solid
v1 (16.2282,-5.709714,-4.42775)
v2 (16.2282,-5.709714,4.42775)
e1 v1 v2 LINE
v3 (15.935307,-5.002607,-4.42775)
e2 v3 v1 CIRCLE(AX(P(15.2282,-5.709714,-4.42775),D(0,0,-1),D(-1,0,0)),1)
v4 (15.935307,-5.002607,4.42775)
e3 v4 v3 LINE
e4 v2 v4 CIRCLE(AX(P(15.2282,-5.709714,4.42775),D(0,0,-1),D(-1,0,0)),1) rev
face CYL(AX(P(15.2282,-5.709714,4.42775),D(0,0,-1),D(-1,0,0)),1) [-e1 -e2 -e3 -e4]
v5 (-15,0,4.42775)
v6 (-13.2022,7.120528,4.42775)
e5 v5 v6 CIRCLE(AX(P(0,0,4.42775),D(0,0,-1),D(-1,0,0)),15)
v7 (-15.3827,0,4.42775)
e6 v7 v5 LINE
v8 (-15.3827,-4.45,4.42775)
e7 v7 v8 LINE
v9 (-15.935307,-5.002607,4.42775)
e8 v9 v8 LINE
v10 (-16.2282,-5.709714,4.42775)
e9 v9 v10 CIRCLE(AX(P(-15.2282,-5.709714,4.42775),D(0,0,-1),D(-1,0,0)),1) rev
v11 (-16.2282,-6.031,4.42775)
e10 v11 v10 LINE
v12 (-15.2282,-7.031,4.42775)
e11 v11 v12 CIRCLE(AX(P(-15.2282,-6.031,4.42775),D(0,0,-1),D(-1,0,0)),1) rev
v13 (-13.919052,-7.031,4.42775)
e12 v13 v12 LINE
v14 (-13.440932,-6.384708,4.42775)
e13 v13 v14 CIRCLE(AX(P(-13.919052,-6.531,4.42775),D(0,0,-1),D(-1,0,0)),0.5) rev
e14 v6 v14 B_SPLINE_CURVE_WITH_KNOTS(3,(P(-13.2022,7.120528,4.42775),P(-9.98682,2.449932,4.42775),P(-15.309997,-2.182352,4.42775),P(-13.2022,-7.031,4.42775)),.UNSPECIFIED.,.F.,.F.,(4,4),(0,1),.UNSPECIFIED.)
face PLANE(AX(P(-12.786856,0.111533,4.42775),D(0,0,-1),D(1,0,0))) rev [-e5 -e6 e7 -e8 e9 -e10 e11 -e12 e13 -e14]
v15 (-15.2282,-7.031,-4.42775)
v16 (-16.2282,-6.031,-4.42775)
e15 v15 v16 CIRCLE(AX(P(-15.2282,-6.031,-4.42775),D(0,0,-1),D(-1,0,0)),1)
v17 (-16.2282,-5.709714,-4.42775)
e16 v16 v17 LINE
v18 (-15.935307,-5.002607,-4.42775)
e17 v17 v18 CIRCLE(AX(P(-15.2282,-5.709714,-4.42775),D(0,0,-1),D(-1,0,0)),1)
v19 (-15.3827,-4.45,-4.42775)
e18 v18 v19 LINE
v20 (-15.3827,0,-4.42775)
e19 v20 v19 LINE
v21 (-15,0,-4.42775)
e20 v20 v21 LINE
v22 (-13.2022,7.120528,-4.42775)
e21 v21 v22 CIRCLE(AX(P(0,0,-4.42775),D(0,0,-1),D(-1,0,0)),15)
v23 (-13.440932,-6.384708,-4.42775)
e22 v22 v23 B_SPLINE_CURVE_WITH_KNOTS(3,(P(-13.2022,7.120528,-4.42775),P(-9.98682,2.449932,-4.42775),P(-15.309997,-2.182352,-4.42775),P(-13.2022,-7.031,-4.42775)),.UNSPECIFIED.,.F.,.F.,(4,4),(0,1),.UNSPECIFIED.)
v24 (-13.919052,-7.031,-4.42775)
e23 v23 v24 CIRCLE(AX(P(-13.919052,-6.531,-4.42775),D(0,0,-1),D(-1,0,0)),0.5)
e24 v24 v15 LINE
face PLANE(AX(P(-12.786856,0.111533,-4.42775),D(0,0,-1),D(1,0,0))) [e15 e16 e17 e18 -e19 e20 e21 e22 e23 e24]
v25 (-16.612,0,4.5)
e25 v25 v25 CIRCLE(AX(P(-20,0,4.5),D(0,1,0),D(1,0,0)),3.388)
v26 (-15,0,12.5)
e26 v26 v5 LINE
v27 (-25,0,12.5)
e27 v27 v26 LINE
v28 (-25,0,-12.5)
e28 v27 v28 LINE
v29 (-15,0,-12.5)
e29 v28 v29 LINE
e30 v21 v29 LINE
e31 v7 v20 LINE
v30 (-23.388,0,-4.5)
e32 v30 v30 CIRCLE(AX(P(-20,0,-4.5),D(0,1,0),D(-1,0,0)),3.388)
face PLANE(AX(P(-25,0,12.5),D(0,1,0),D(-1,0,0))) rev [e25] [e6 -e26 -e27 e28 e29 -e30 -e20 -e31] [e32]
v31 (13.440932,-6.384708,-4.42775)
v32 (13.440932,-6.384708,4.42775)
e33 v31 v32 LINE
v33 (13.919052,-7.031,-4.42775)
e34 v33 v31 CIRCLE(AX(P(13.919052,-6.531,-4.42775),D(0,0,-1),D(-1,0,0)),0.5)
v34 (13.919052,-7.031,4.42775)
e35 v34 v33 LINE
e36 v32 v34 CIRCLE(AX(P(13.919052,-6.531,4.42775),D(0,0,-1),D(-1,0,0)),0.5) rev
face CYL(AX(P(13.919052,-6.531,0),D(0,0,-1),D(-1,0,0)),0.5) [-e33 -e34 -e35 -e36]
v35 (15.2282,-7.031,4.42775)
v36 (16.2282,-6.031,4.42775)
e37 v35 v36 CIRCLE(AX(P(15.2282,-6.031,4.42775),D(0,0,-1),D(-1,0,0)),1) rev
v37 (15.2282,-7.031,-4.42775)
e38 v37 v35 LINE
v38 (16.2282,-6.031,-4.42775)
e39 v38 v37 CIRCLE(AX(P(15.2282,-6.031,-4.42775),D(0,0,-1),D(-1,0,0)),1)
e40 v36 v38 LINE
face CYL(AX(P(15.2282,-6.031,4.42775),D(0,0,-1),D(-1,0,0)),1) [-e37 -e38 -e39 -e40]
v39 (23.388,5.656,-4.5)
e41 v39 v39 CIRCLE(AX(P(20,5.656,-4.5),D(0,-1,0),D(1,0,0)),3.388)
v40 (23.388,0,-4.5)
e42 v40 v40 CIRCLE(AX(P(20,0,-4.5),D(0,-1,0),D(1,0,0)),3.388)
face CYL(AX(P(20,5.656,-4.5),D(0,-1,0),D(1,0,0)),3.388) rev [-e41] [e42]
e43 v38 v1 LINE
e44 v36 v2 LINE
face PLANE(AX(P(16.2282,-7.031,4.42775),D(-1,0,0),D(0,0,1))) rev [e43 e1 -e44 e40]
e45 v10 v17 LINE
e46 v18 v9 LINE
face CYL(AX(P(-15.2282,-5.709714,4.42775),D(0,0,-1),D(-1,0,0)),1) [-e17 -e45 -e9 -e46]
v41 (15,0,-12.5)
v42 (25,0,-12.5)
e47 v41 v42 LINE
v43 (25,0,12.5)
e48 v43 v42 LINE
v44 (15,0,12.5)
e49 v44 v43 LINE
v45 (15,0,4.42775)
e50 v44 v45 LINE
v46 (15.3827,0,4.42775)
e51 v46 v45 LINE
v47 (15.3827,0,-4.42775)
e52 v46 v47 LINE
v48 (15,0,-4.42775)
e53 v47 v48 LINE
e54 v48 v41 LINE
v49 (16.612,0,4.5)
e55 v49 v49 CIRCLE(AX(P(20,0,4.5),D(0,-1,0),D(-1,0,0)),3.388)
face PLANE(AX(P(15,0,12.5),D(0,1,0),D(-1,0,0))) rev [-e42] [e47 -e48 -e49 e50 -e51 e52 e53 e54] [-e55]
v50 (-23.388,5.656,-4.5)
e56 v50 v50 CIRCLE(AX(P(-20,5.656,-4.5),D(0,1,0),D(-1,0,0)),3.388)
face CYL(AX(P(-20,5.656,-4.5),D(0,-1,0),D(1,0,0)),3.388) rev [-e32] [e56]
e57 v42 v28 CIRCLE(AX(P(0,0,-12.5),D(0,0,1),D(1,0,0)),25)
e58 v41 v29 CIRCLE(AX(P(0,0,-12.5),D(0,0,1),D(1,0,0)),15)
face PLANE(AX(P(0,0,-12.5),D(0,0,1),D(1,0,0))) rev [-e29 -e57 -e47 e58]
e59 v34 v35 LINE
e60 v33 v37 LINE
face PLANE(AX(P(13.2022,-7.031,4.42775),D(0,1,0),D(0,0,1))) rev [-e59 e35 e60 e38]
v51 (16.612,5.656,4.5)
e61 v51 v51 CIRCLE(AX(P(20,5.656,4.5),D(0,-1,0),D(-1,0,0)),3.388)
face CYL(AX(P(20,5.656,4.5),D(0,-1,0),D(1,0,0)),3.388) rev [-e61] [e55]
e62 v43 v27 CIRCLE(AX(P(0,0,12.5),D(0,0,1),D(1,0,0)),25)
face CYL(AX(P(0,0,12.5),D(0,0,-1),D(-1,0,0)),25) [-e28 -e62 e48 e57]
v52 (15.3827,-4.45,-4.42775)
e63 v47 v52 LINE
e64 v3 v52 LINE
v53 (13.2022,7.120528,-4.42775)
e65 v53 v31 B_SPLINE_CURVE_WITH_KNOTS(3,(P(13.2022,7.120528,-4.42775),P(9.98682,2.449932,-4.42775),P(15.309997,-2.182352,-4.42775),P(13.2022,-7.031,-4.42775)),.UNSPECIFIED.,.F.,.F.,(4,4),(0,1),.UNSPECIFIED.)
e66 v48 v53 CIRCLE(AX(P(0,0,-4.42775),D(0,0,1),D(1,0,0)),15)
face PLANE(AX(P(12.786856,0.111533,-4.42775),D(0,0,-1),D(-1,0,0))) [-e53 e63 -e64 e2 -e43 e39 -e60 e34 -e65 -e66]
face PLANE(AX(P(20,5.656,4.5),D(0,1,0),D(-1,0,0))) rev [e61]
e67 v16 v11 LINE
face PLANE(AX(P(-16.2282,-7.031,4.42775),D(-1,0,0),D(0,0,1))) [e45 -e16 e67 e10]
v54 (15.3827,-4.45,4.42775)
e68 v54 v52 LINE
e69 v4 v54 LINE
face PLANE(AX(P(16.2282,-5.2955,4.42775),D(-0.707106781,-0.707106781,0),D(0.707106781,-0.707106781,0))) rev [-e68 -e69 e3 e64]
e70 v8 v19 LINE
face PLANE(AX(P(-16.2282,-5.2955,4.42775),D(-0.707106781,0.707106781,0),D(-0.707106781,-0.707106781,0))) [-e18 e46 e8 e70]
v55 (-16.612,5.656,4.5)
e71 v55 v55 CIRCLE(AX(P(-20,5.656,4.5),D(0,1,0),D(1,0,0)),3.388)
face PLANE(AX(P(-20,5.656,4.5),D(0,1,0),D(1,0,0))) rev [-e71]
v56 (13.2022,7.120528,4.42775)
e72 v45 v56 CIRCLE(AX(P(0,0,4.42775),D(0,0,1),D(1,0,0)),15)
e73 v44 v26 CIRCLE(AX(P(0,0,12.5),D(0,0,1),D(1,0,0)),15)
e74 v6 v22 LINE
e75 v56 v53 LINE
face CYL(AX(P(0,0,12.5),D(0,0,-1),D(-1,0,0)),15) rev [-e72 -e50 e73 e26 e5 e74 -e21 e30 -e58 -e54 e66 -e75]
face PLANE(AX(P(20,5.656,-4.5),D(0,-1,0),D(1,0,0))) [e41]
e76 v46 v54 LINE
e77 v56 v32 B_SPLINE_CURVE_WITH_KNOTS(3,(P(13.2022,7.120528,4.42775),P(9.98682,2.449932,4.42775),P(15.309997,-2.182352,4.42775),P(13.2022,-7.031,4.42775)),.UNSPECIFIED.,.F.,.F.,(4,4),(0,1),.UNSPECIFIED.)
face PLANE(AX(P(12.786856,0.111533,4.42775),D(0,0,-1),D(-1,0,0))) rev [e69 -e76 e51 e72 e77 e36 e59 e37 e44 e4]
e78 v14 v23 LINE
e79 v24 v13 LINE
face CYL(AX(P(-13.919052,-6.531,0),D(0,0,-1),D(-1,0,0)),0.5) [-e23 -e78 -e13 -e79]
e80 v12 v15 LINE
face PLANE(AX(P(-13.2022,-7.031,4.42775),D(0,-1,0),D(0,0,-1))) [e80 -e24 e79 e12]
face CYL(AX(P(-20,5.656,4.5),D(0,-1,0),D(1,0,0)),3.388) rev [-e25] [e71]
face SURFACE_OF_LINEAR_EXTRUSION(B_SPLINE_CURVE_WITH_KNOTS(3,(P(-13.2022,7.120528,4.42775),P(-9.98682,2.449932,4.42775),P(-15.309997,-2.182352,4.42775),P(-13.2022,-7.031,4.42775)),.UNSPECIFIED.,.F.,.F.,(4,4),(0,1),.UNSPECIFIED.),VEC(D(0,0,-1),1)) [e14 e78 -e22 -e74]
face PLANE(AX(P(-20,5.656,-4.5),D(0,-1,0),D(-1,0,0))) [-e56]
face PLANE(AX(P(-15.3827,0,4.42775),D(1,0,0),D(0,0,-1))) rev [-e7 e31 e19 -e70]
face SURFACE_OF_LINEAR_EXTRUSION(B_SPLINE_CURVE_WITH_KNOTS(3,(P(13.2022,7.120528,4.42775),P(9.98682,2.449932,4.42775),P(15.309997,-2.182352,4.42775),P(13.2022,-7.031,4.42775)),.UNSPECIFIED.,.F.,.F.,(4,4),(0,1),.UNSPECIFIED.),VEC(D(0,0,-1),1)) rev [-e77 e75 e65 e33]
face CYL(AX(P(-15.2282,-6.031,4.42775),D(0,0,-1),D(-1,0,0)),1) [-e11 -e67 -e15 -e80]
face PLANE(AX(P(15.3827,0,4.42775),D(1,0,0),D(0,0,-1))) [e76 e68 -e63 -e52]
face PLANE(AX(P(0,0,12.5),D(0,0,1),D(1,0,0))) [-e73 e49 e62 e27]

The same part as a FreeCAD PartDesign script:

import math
import FreeCAD as App
import Part
import Sketcher

V = App.Vector
Q = App.Units.Quantity


def edges_at(feature, points):
    """Names of the edges that pass closest to the given points."""
    edges = feature.Shape.Edges
    near = lambda p: min(range(len(edges)), key=lambda i: edges[i].distToShape(Part.Vertex(*p))[0])
    return sorted({f"Edge{near(p) + 1}" for p in points})

doc = App.newDocument("Part")
params = doc.addObject("Spreadsheet::Sheet", "Params")
for row, (alias, value) in enumerate([
    ("sketch1_radius", "15 mm"),
    ("sketch1_radius2", "25 mm"),
    ("pad1_length", "25 mm"),
    ("sketch2_height", "4.45 mm"),
    ("pad2_length", "8.8555 mm"),
    ("fillet_radius", "1 mm"),
    ("fillet2_radius", "1 mm"),
    ("fillet3_radius", "1 mm"),
    ("fillet4_radius", "1 mm"),
    ("pocket1_length", "5.656 mm"),
    ("fillet5_radius", "0.5 mm"),
], start=1):
    params.set(f"A{row}", alias)
    params.set(f"B{row}", "=" + value)
    params.setAlias(f"B{row}", alias)

body = doc.addObject("PartDesign::Body", "Body")

sketch1 = body.newObject("Sketcher::SketchObject", "Sketch")
sketch1.AttachmentSupport = (doc.getObject("XY_Plane"), [""])
sketch1.MapMode = "FlatFace"
sketch1.addGeometry([
    Part.LineSegment(V(-25, 0, 0), V(-15, 0, 0)),
    Part.ArcOfCircle(Part.Circle(V(0, 0, 0), V(0, 0, 1), 15), math.radians(0), math.radians(180)),
    Part.LineSegment(V(15, 0, 0), V(25, 0, 0)),
    Part.ArcOfCircle(Part.Circle(V(0, 0, 0), V(0, 0, 1), 25), math.radians(0), math.radians(180)),
], False)
sketch1.addConstraint([
    Sketcher.Constraint("Coincident", 0, 2, 1, 2),
    Sketcher.Constraint("Coincident", 1, 1, 2, 1),
    Sketcher.Constraint("Coincident", 2, 2, 3, 1),
    Sketcher.Constraint("Coincident", 3, 2, 0, 1),
    Sketcher.Constraint("Horizontal", 0),
    Sketcher.Constraint("Horizontal", 2),
    Sketcher.Constraint("Coincident", 1, 3, -1, 1),
    Sketcher.Constraint("Coincident", 3, 3, -1, 1),
    Sketcher.Constraint("PointOnObject", 0, 2, -1),
    Sketcher.Constraint("PointOnObject", 1, 1, -1),
    Sketcher.Constraint("Radius", 1, Q("15 mm")),
    Sketcher.Constraint("Radius", 3, Q("25 mm")),
])
sketch1.setExpression("Constraints[10]", "Params.sketch1_radius")
sketch1.setExpression("Constraints[11]", "Params.sketch1_radius2")
pad1 = body.newObject("PartDesign::Pad", "Pad")
pad1.Profile = sketch1
pad1.setExpression("Length", "Params.pad1_length")
pad1.Midplane = True

sketch2 = body.newObject("Sketcher::SketchObject", "Sketch001")
sketch2.AttachmentSupport = (doc.getObject("XY_Plane"), [""])
sketch2.MapMode = "FlatFace"
sketch2.addGeometry([
    Part.LineSegment(V(15.3827, -4.45, 0), V(15.3827, 0, 0)),
    Part.LineSegment(V(15.3827, 0, 0), V(15, 0, 0)),
    Part.ArcOfCircle(Part.Circle(V(0, 0, 0), V(0, 0, 1), 15), math.radians(0), math.radians(28.339939)),
    Part.BSplineCurve([V(13.2022, 7.120528, 0), V(9.98682, 2.449932, 0), V(15.309997, -2.182352, 0), V(13.2022, -7.031, 0)], [4, 4], [0, 1], False, 3, [1, 1, 1, 1], False),
    Part.LineSegment(V(13.2022, -7.031, 0), V(16.2282, -7.031, 0)),
    Part.LineSegment(V(16.2282, -7.031, 0), V(16.2282, -5.2955, 0)),
    Part.LineSegment(V(16.2282, -5.2955, 0), V(15.3827, -4.45, 0)),
], False)
sketch2.addConstraint([
    Sketcher.Constraint("Block", 3),
    Sketcher.Constraint("Coincident", 0, 2, 1, 1),
    Sketcher.Constraint("Coincident", 1, 2, 2, 1),
    Sketcher.Constraint("Coincident", 2, 2, 3, 1),
    Sketcher.Constraint("Coincident", 3, 2, 4, 1),
    Sketcher.Constraint("Coincident", 4, 2, 5, 1),
    Sketcher.Constraint("Coincident", 5, 2, 6, 1),
    Sketcher.Constraint("Coincident", 6, 2, 0, 1),
    Sketcher.Constraint("Vertical", 0),
    Sketcher.Constraint("Horizontal", 1),
    Sketcher.Constraint("Horizontal", 4),
    Sketcher.Constraint("Vertical", 5),
    Sketcher.Constraint("Coincident", 2, 3, -1, 1),
    Sketcher.Constraint("PointOnObject", 0, 2, -1),
    Sketcher.Constraint("DistanceY", 0, 1, 0, 2, Q("4.45 mm")),
    Sketcher.Constraint("DistanceX", 4, 1, 4, 2, Q("3.026 mm")),
    Sketcher.Constraint("DistanceX", 1, 2, 1, 1, Q("0.3827 mm")),
    Sketcher.Constraint("DistanceY", 5, 1, 5, 2, Q("1.7355 mm")),
])
sketch2.setExpression("Constraints[14]", "Params.sketch2_height")
pad2 = body.newObject("PartDesign::Pad", "Pad001")
pad2.Profile = sketch2
pad2.setExpression("Length", "Params.pad2_length")
pad2.Midplane = True
doc.recompute()

mirrored = body.newObject("PartDesign::Mirrored", "Mirrored")
mirrored.Originals = [pad2]
mirrored.MirrorPlane = (doc.getObject("YZ_Plane"), [""])
body.Tip = mirrored
doc.recompute()

fillet = body.newObject("PartDesign::Fillet", "Fillet")
fillet.Base = (mirrored, edges_at(mirrored, [(16.228, -7.031, 0)]))
fillet.setExpression("Radius", "Params.fillet_radius")
doc.recompute()

fillet2 = body.newObject("PartDesign::Fillet", "Fillet001")
fillet2.Base = (fillet, edges_at(fillet, [(-16.228, -7.031, 0)]))
fillet2.setExpression("Radius", "Params.fillet2_radius")
doc.recompute()

fillet3 = body.newObject("PartDesign::Fillet", "Fillet002")
fillet3.Base = (fillet2, edges_at(fillet2, [(16.228, -5.295, 0)]))
fillet3.setExpression("Radius", "Params.fillet3_radius")
doc.recompute()

fillet4 = body.newObject("PartDesign::Fillet", "Fillet003")
fillet4.Base = (fillet3, edges_at(fillet3, [(-16.228, -5.295, 0)]))
fillet4.setExpression("Radius", "Params.fillet4_radius")

sketch3 = body.newObject("Sketcher::SketchObject", "Sketch002")
sketch3.AttachmentSupport = (doc.getObject("XZ_Plane"), [""])
sketch3.MapMode = "FlatFace"
sketch3.addGeometry([
    Part.Circle(V(20, -4.5, 0), V(0, 0, 1), 3.4),
    Part.Circle(V(20, 4.5, 0), V(0, 0, 1), 3.4),
], False)
sketch3.addConstraint([
    Sketcher.Constraint("Equal", 0, 1),
    Sketcher.Constraint("Symmetric", 0, 3, 1, 3, -1),
    Sketcher.Constraint("Diameter", 0, Q("6.776 mm")),
    Sketcher.Constraint("DistanceX", -1, 1, 0, 3, Q("20 mm")),
    Sketcher.Constraint("DistanceY", 0, 3, 1, 3, Q("9 mm")),
])
pocket1 = body.newObject("PartDesign::Pocket", "Pocket")
pocket1.Profile = sketch3
pocket1.setExpression("Length", "Params.pocket1_length")
doc.recompute()

mirrored2 = body.newObject("PartDesign::Mirrored", "Mirrored001")
mirrored2.Originals = [pocket1]
mirrored2.MirrorPlane = (doc.getObject("YZ_Plane"), [""])
body.Tip = mirrored2
doc.recompute()

fillet5 = body.newObject("PartDesign::Fillet", "Fillet004")
fillet5.Base = (mirrored2, edges_at(mirrored2, [(13.202, -7.031, 2.214), (-13.202, -7.031, -2.214)]))
fillet5.setExpression("Radius", "Params.fillet5_radius")

doc.recompute()
